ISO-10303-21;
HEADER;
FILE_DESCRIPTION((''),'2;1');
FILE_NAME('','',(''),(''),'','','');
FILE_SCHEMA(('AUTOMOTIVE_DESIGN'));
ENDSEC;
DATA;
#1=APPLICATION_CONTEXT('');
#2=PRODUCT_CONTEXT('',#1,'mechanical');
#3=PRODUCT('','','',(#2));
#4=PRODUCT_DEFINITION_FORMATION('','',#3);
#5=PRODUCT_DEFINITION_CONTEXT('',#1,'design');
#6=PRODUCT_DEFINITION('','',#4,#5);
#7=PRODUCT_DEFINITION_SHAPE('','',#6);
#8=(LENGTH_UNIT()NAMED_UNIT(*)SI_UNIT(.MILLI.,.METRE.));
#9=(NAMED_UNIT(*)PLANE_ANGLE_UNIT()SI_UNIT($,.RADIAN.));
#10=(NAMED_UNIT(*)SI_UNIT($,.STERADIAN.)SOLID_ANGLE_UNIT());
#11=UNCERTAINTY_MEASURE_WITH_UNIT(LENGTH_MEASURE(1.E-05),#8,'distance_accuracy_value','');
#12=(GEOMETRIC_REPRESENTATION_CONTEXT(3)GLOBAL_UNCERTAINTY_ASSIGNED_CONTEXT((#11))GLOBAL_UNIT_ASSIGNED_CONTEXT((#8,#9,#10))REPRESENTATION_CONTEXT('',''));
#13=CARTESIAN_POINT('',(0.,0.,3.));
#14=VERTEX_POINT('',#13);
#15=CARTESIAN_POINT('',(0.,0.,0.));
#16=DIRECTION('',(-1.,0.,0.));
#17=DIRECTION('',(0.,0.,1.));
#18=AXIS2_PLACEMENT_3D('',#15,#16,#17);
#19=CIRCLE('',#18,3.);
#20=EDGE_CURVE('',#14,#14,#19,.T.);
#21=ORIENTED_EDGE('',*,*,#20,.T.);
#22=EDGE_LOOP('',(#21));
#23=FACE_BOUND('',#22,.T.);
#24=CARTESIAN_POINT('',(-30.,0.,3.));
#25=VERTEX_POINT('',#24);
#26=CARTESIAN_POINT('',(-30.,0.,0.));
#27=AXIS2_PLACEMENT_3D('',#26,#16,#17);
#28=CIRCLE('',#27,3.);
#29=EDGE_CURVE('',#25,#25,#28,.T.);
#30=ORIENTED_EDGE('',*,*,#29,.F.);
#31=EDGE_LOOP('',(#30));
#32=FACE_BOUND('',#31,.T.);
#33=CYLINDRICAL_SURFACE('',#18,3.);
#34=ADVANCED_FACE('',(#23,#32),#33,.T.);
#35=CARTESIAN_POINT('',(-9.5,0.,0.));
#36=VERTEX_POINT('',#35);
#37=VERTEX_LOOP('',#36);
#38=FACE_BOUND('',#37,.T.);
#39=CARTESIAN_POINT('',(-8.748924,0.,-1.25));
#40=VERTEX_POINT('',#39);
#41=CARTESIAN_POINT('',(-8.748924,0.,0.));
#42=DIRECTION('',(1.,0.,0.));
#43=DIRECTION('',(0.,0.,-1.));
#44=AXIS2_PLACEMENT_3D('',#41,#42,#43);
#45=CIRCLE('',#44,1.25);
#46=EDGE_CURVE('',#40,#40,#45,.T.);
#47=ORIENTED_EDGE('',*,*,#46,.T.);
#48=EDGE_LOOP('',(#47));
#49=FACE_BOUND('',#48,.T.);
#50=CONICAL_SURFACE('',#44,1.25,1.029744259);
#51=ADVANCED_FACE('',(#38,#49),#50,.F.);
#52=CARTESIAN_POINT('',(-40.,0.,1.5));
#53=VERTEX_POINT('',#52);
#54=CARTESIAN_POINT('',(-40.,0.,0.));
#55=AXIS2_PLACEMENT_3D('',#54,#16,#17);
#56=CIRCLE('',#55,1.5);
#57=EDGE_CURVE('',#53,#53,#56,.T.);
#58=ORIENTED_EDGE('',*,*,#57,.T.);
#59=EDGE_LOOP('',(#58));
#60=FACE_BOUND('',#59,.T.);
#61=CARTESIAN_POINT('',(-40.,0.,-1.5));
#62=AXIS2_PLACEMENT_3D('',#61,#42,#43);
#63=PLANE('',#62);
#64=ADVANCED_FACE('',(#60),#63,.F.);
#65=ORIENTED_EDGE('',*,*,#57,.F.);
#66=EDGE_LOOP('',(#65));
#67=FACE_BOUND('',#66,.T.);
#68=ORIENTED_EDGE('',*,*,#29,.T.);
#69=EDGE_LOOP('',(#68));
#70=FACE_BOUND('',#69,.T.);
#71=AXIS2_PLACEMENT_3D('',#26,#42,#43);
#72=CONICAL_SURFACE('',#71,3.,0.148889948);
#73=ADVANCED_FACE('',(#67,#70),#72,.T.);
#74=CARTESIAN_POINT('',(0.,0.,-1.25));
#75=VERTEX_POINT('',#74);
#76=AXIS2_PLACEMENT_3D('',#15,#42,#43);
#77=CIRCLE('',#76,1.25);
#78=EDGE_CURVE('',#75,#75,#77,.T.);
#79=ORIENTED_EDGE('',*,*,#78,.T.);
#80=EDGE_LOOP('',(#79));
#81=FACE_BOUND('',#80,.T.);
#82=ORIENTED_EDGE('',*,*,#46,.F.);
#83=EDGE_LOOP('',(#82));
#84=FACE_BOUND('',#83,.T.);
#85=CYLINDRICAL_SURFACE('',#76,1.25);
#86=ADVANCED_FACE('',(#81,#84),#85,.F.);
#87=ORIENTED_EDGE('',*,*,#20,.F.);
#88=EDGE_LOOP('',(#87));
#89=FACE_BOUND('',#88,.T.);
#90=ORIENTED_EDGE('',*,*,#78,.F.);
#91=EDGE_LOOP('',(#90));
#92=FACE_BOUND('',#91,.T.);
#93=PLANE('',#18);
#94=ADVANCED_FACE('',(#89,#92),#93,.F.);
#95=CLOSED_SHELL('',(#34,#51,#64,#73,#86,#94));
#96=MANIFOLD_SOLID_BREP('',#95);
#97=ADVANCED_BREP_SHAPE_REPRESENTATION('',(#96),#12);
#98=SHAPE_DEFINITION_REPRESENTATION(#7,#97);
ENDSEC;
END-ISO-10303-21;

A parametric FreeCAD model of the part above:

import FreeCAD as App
import Part
import Sketcher

V = App.Vector


def add_polygon(sketch, points):
    """Adds a closed chain of lines whose ends are joined by coincident constraints."""
    first, n = sketch.GeometryCount, len(points)
    for a, b in zip(points, points[1:] + points[:1]):
        sketch.addGeometry(Part.LineSegment(App.Vector(*a, 0), App.Vector(*b, 0)), False)
    for i in range(n):
        sketch.addConstraint(Sketcher.Constraint("Coincident", first + i, 2, first + (i + 1) % n, 1))

doc = App.newDocument("Part")
body = doc.addObject("PartDesign::Body", "Body")

# Sketch on XZ plane
sketch1 = body.newObject("Sketcher::SketchObject", "Sketch")
sketch1.AttachmentSupport = (doc.getObject("XZ_Plane"), [""])
sketch1.MapMode = "FlatFace"
add_polygon(sketch1, [(0, 0), (0, -3), (-30, -3), (-40, -1.5), (-40, 0)])  # lines 0-4
sketch1.addConstraint([
    Sketcher.Constraint("Vertical", 0),
    Sketcher.Constraint("Horizontal", 1),
    Sketcher.Constraint("Vertical", 3),
    Sketcher.Constraint("Horizontal", 4),
    Sketcher.Constraint("Coincident", 4, 2, -1, 1),
    Sketcher.Constraint("DistanceX", 1, 2, 1, 1, 30.0),
    Sketcher.Constraint("DistanceX", 4, 1, 4, 2, 40.0),
    Sketcher.Constraint("DistanceY", 0, 2, 0, 1, 3.0),
    Sketcher.Constraint("DistanceY", 3, 1, 3, 2, 1.5),
])
revolution = body.newObject("PartDesign::Revolution", "Revolution")
revolution.Profile = sketch1
revolution.ReferenceAxis = (sketch1, ["H_Axis"])
revolution.Angle = 360

# Sketch on YZ plane
sketch2 = body.newObject("Sketcher::SketchObject", "Sketch001")
sketch2.AttachmentSupport = (doc.getObject("YZ_Plane"), [""])
sketch2.MapMode = "FlatFace"
sketch2.addGeometry(Part.Circle(V(0, 0, 0), V(0, 0, 1), 1.25), False)
sketch2.addConstraint([
    Sketcher.Constraint("Coincident", 0, 3, -1, 1),
    Sketcher.Constraint("Diameter", 0, 2.5),
])
doc.recompute()
hole = body.newObject("PartDesign::Hole", "Hole")
hole.Profile = sketch2
hole.ThreadType = "None"
hole.Diameter = 2.5
hole.DepthType = "Dimension"
hole.Depth = 8.748924
hole.DrillPoint = "Angled"
hole.DrillPointAngle = 118

doc.recompute()
